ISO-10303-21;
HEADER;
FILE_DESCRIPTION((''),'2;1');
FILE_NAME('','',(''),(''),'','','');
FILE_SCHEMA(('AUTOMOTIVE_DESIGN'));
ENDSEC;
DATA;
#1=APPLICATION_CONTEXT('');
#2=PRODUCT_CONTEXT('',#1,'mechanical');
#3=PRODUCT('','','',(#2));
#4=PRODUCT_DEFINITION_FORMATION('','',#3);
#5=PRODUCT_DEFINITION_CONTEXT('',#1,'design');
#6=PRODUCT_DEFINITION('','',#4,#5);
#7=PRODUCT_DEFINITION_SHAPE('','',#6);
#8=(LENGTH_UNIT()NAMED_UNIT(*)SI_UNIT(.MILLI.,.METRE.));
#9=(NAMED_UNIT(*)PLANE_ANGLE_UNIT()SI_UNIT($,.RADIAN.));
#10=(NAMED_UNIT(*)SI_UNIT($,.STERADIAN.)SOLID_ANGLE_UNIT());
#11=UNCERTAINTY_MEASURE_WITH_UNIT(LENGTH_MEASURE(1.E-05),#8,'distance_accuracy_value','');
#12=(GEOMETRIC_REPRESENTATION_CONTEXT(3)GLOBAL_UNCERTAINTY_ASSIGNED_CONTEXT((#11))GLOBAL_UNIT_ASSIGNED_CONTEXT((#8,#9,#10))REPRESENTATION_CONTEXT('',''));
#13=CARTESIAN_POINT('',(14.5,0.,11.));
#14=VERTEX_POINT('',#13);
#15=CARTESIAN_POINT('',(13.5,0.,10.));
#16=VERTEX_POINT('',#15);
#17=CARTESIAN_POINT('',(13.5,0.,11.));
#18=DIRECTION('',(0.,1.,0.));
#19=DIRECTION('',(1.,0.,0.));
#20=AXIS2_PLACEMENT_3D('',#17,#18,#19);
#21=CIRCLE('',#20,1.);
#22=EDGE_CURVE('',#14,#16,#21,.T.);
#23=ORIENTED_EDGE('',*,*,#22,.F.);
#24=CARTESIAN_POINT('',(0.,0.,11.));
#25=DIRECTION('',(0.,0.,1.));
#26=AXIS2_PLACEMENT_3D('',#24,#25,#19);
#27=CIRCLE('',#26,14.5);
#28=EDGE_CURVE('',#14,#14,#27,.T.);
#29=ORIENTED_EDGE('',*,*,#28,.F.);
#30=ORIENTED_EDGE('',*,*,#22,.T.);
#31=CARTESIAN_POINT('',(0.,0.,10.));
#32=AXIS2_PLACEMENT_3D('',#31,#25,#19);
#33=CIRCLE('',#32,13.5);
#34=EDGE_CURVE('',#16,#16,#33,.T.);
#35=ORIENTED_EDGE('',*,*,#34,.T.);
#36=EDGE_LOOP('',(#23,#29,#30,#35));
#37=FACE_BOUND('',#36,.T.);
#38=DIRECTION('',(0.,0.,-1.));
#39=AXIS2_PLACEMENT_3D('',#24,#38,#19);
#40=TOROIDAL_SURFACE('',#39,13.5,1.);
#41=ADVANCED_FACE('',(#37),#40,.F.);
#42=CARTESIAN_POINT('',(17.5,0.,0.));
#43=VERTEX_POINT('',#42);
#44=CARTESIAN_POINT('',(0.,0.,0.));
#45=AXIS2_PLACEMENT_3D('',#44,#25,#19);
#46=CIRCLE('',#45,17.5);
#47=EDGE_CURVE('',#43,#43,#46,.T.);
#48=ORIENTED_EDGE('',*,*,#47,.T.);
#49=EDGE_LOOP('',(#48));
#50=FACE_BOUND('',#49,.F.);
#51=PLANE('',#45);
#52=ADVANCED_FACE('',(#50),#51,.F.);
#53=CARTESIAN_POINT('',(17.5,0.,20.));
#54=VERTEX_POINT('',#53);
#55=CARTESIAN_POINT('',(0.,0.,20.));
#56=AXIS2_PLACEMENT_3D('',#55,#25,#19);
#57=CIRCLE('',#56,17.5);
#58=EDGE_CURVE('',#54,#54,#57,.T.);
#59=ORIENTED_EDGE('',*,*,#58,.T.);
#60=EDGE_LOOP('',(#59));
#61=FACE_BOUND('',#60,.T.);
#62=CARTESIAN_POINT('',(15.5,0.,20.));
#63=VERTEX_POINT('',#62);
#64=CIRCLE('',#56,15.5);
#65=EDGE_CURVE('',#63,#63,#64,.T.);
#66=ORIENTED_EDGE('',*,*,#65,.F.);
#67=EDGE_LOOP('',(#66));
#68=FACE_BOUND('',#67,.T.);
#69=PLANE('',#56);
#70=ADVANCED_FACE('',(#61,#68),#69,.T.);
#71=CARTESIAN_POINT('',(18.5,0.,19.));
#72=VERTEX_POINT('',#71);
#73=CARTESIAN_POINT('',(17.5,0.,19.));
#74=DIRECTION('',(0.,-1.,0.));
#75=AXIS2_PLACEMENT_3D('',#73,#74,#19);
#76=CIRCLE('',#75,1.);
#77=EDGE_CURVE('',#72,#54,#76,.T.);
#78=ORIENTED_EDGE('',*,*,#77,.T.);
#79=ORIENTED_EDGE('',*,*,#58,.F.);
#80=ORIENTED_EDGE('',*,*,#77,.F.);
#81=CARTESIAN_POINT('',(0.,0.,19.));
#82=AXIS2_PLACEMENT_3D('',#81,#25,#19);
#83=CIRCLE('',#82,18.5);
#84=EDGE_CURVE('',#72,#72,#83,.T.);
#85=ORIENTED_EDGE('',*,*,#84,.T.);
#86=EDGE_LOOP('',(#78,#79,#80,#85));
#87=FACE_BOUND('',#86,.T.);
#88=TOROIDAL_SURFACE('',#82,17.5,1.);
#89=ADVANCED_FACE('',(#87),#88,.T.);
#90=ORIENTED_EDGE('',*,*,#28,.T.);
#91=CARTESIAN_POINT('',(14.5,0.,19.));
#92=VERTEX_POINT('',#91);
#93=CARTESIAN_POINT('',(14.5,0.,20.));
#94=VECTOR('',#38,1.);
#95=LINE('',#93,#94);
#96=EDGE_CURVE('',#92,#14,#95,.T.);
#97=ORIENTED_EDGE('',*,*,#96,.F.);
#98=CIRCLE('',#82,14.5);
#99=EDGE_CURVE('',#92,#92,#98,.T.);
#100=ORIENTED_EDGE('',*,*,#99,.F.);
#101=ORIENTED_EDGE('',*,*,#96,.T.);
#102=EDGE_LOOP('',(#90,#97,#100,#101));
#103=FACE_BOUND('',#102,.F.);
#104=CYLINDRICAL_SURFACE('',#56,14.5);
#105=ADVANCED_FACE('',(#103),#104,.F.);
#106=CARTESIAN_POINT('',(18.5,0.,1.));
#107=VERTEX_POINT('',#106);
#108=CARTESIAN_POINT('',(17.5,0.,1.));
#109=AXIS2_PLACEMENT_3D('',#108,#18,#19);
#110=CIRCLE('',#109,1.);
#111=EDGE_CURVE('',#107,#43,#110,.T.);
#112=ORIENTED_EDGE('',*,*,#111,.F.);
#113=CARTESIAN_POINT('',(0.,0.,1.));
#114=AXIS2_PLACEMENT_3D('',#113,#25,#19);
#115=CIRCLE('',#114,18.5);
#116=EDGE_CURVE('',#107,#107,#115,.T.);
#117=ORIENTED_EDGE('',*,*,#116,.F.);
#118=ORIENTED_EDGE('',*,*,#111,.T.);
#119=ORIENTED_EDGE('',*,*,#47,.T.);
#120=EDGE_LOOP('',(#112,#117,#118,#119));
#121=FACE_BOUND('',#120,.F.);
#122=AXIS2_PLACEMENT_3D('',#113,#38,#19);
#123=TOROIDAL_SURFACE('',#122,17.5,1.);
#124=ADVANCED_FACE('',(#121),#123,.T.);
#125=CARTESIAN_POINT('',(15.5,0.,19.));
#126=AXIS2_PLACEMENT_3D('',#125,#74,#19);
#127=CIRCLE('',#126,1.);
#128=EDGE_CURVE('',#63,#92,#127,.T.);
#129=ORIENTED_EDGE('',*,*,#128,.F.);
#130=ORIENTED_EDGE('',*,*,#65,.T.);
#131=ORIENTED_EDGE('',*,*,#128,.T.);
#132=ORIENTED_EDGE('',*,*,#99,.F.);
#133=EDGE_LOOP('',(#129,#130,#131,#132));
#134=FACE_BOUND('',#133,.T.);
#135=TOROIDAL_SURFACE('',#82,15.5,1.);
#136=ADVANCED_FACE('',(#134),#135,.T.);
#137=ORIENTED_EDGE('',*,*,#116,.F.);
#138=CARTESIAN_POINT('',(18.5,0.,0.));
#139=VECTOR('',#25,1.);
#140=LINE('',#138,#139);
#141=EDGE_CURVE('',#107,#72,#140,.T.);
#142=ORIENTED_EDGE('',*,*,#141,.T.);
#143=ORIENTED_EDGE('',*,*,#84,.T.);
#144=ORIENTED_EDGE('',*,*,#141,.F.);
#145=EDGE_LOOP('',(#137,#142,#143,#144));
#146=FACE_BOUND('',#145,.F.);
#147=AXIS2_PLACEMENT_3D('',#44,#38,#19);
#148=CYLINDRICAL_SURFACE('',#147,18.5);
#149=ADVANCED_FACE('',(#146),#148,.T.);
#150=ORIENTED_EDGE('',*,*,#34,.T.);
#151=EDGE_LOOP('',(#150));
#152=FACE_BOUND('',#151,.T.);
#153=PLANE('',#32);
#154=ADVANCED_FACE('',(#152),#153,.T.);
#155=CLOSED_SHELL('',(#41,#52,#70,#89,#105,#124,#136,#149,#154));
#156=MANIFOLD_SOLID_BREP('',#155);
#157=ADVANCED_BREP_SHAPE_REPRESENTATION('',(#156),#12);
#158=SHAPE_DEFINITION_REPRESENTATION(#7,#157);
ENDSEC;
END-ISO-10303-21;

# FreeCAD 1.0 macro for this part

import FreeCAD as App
import Part
import Sketcher
Q = App.Units.Quantity


def edges_at(feature, points):
    """Names of the edges that pass closest to the given points."""
    edges = feature.Shape.Edges
    near = lambda p: min(range(len(edges)), key=lambda i: edges[i].distToShape(Part.Vertex(*p))[0])
    return sorted({f"Edge{near(p) + 1}" for p in points})

doc = App.newDocument("Part")
params = doc.addObject("Spreadsheet::Sheet", "Params")
for row, (alias, value) in enumerate([
    ("sketch1_diameter", "37 mm"),
    ("pad1_length", "20 mm"),
    ("sketch2_diameter", "29 mm"),
    ("pocket1_length", "10 mm"),
    ("fillet_radius", "1 mm"),
], start=1):
    params.set(f"A{row}", alias)
    params.set(f"B{row}", "=" + value)
    params.setAlias(f"B{row}", alias)

body = doc.addObject("PartDesign::Body", "Body")

sketch1 = body.newObject("Sketcher::SketchObject", "Sketch")
sketch1.AttachmentSupport = (doc.getObject("XY_Plane"), [""])
sketch1.MapMode = "FlatFace"
sketch1.addGeometry(Part.Circle(App.Vector(0, 0, 0), App.Vector(0, 0, 1), 18.5), False)
sketch1.addConstraint([
    Sketcher.Constraint("Coincident", 0, 3, -1, 1),
    Sketcher.Constraint("Diameter", 0, Q("37 mm")),
])
sketch1.setExpression("Constraints[1]", "Params.sketch1_diameter")
pad1 = body.newObject("PartDesign::Pad", "Pad")
pad1.Profile = sketch1
pad1.setExpression("Length", "Params.pad1_length")

sketch2 = body.newObject("Sketcher::SketchObject", "Sketch001")
sketch2.AttachmentSupport = (doc.getObject("XY_Plane"), [""])
sketch2.MapMode = "FlatFace"
sketch2.AttachmentOffset = App.Placement(App.Vector(0, 0, 20), App.Rotation())
sketch2.addGeometry(Part.Circle(App.Vector(0, 0, 0), App.Vector(0, 0, 1), 14.5), False)
sketch2.addConstraint([
    Sketcher.Constraint("Coincident", 0, 3, -1, 1),
    Sketcher.Constraint("Diameter", 0, Q("29 mm")),
])
sketch2.setExpression("Constraints[1]", "Params.sketch2_diameter")
pocket1 = body.newObject("PartDesign::Pocket", "Pocket")
pocket1.Profile = sketch2
pocket1.setExpression("Length", "Params.pocket1_length")
doc.recompute()

fillet = body.newObject("PartDesign::Fillet", "Fillet")
fillet.Base = (pocket1, edges_at(pocket1, [
    (-18.5, 0, 20),
    (-14.5, 0, 20),
    (-18.5, 0, 0),
    (-14.5, 0, 10),
]))
fillet.setExpression("Radius", "Params.fillet_radius")

doc.recompute()
